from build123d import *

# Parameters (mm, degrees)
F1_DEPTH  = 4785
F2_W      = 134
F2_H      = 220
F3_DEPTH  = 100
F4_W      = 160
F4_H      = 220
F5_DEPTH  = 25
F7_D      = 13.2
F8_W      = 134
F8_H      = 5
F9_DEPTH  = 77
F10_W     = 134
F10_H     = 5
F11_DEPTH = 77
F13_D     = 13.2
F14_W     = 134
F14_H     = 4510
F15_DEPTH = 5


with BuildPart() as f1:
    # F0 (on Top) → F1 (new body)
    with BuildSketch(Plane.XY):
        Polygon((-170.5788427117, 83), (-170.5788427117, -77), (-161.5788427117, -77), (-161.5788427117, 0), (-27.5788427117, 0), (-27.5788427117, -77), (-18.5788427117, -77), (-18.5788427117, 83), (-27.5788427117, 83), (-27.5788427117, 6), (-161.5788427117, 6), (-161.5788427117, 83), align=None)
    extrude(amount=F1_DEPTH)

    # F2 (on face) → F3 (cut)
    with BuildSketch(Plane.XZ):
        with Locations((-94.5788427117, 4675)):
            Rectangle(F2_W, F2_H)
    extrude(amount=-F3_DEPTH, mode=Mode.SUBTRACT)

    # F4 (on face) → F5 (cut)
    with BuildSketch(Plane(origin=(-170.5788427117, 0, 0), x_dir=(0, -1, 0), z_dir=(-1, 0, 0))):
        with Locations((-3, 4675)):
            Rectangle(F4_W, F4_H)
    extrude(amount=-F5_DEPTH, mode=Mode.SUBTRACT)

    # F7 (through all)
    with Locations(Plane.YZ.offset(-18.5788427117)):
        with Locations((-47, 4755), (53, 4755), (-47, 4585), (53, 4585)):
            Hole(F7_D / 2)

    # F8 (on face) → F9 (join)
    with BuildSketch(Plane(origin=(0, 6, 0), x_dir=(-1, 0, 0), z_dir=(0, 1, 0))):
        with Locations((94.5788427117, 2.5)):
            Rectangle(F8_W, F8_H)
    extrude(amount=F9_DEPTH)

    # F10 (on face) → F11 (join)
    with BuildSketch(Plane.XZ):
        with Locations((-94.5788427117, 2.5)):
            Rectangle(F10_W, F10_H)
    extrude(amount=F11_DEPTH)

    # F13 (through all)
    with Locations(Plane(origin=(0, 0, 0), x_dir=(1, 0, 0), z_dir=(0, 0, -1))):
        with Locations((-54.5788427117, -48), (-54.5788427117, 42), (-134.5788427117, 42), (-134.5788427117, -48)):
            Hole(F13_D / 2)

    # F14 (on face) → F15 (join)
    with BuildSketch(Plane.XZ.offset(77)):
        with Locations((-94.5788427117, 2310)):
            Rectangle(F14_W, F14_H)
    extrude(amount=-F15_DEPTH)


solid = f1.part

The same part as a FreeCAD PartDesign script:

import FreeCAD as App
import Part
import Sketcher
from FreeCAD import Vector

doc = App.newDocument("Part")
body = doc.addObject("PartDesign::Body", "Body")

sketch1 = body.newObject("Sketcher::SketchObject", "Sketch")
sketch1.AttachmentSupport = (doc.getObject("XY_Plane"), [""])
sketch1.MapMode = "FlatFace"
sketch1.addGeometry([
    Part.LineSegment(Vector(-171, 83, 0), Vector(-171, -77, 0)),
    Part.LineSegment(Vector(-171, -77, 0), Vector(-162, -77, 0)),
    Part.LineSegment(Vector(-162, -77, 0), Vector(-162, 0, 0)),
    Part.LineSegment(Vector(-162, 0, 0), Vector(-28, 0, 0)),
    Part.LineSegment(Vector(-28, 0, 0), Vector(-28, -77, 0)),
    Part.LineSegment(Vector(-28, -77, 0), Vector(-19, -77, 0)),
    Part.LineSegment(Vector(-19, -77, 0), Vector(-19, 83, 0)),
    Part.LineSegment(Vector(-19, 83, 0), Vector(-28, 83, 0)),
    Part.LineSegment(Vector(-28, 83, 0), Vector(-28, 6, 0)),
    Part.LineSegment(Vector(-28, 6, 0), Vector(-162, 6, 0)),
    Part.LineSegment(Vector(-162, 6, 0), Vector(-162, 83, 0)),
    Part.LineSegment(Vector(-162, 83, 0), Vector(-171, 83, 0)),
], False)
sketch1.addConstraint([
    Sketcher.Constraint("Coincident", 0, 2, 1, 1),
    Sketcher.Constraint("Coincident", 1, 2, 2, 1),
    Sketcher.Constraint("Coincident", 2, 2, 3, 1),
    Sketcher.Constraint("Coincident", 3, 2, 4, 1),
    Sketcher.Constraint("Coincident", 4, 2, 5, 1),
    Sketcher.Constraint("Coincident", 5, 2, 6, 1),
    Sketcher.Constraint("Coincident", 6, 2, 7, 1),
    Sketcher.Constraint("Coincident", 7, 2, 8, 1),
    Sketcher.Constraint("Coincident", 8, 2, 9, 1),
    Sketcher.Constraint("Coincident", 9, 2, 10, 1),
    Sketcher.Constraint("Coincident", 10, 2, 11, 1),
    Sketcher.Constraint("Coincident", 11, 2, 0, 1),
    Sketcher.Constraint("Vertical", 0),
    Sketcher.Constraint("Horizontal", 1),
    Sketcher.Constraint("Vertical", 2),
    Sketcher.Constraint("Horizontal", 3),
    Sketcher.Constraint("Vertical", 4),
    Sketcher.Constraint("Horizontal", 5),
    Sketcher.Constraint("Vertical", 6),
    Sketcher.Constraint("Horizontal", 7),
    Sketcher.Constraint("Vertical", 8),
    Sketcher.Constraint("Horizontal", 9),
    Sketcher.Constraint("Vertical", 10),
    Sketcher.Constraint("Horizontal", 11),
    Sketcher.Constraint("PointOnObject", 2, 2, -1),
    Sketcher.Constraint("Horizontal", 1, 2, 4, 2),
    Sketcher.Constraint("Horizontal", 7, 2, 10, 2),
    Sketcher.Constraint("Vertical", 4, 2, 7, 2),
    Sketcher.Constraint("Vertical", 2, 2, 9, 2),
    Sketcher.Constraint("Equal", 1, 5),
    Sketcher.Constraint("Equal", 4, 8),
    Sketcher.Constraint("DistanceX", 1, 1, 1, 2, 9.0),
    Sketcher.Constraint("DistanceX", 3, 1, 3, 2, 134.0),
    Sketcher.Constraint("DistanceY", 0, 2, 0, 1, 160.0),
    Sketcher.Constraint("DistanceY", 2, 1, 2, 2, 77.0),
    Sketcher.Constraint("DistanceX", 0, 2, -1, 1, 170.578843),
])
pad1 = body.newObject("PartDesign::Pad", "Pad")
pad1.Profile = sketch1
pad1.Length = 4785

sketch2 = body.newObject("Sketcher::SketchObject", "Sketch001")
sketch2.AttachmentSupport = (doc.getObject("XZ_Plane"), [""])
sketch2.MapMode = "FlatFace"
sketch2.addGeometry([
    Part.LineSegment(Vector(-162, 4785, 0), Vector(-162, 4565, 0)),
    Part.LineSegment(Vector(-162, 4565, 0), Vector(-28, 4565, 0)),
    Part.LineSegment(Vector(-28, 4565, 0), Vector(-28, 4785, 0)),
    Part.LineSegment(Vector(-28, 4785, 0), Vector(-162, 4785, 0)),
], False)
sketch2.addConstraint([
    Sketcher.Constraint("Coincident", 0, 2, 1, 1),
    Sketcher.Constraint("Coincident", 1, 2, 2, 1),
    Sketcher.Constraint("Coincident", 2, 2, 3, 1),
    Sketcher.Constraint("Coincident", 3, 2, 0, 1),
    Sketcher.Constraint("Vertical", 0),
    Sketcher.Constraint("Horizontal", 1),
    Sketcher.Constraint("Vertical", 2),
    Sketcher.Constraint("Horizontal", 3),
    Sketcher.Constraint("DistanceX", 1, 1, 1, 2, 134.0),
    Sketcher.Constraint("DistanceY", 0, 2, 0, 1, 220.0),
    Sketcher.Constraint("DistanceY", -1, 1, 0, 2, 4565.0),
    Sketcher.Constraint("DistanceX", 0, 2, -1, 1, 161.578843),
])
pocket1 = body.newObject("PartDesign::Pocket", "Pocket")
pocket1.Profile = sketch2
pocket1.Length = 100

sketch3 = body.newObject("Sketcher::SketchObject", "Sketch002")
sketch3.AttachmentSupport = (doc.getObject("YZ_Plane"), [""])
sketch3.MapMode = "FlatFace"
sketch3.AttachmentOffset = App.Placement(Vector(0, 0, -170.578843), App.Rotation())
sketch3.addGeometry([
    Part.LineSegment(Vector(83, 4785, 0), Vector(83, 4565, 0)),
    Part.LineSegment(Vector(83, 4565, 0), Vector(-77, 4565, 0)),
    Part.LineSegment(Vector(-77, 4565, 0), Vector(-77, 4785, 0)),
    Part.LineSegment(Vector(-77, 4785, 0), Vector(83, 4785, 0)),
], False)
sketch3.addConstraint([
    Sketcher.Constraint("Coincident", 0, 2, 1, 1),
    Sketcher.Constraint("Coincident", 1, 2, 2, 1),
    Sketcher.Constraint("Coincident", 2, 2, 3, 1),
    Sketcher.Constraint("Coincident", 3, 2, 0, 1),
    Sketcher.Constraint("Vertical", 0),
    Sketcher.Constraint("Horizontal", 1),
    Sketcher.Constraint("Vertical", 2),
    Sketcher.Constraint("Horizontal", 3),
    Sketcher.Constraint("DistanceX", 1, 2, 1, 1, 160.0),
    Sketcher.Constraint("DistanceY", 0, 2, 0, 1, 220.0),
    Sketcher.Constraint("DistanceX", -1, 1, 0, 2, 83.0),
    Sketcher.Constraint("DistanceY", -1, 1, 0, 2, 4565.0),
])
pocket2 = body.newObject("PartDesign::Pocket", "Pocket001")
pocket2.Profile = sketch3
pocket2.Length = 25
pocket2.Reversed = True

sketch4 = body.newObject("Sketcher::SketchObject", "Sketch003")
sketch4.AttachmentSupport = (doc.getObject("YZ_Plane"), [""])
sketch4.MapMode = "FlatFace"
sketch4.AttachmentOffset = App.Placement(Vector(0, 0, -18.578843), App.Rotation())
sketch4.addGeometry([
    Part.Circle(Vector(-47, 4755, 0), Vector(0, 0, 1), 7),
    Part.Circle(Vector(53, 4755, 0), Vector(0, 0, 1), 7),
    Part.Circle(Vector(-47, 4585, 0), Vector(0, 0, 1), 7),
    Part.Circle(Vector(53, 4585, 0), Vector(0, 0, 1), 7),
], False)
sketch4.addConstraint([
    Sketcher.Constraint("Equal", 0, 1),
    Sketcher.Constraint("Equal", 1, 2),
    Sketcher.Constraint("Equal", 2, 3),
    Sketcher.Constraint("Horizontal", 0, 3, 1, 3),
    Sketcher.Constraint("Horizontal", 2, 3, 3, 3),
    Sketcher.Constraint("Vertical", 0, 3, 2, 3),
    Sketcher.Constraint("Vertical", 1, 3, 3, 3),
    Sketcher.Constraint("Diameter", 0, 13.2),
    Sketcher.Constraint("DistanceX", 0, 3, -1, 1, 47.0),
    Sketcher.Constraint("DistanceY", -1, 1, 0, 3, 4755.0),
    Sketcher.Constraint("DistanceX", -1, 1, 1, 3, 53.0),
    Sketcher.Constraint("DistanceY", -1, 1, 2, 3, 4585.0),
])
doc.recompute()
hole = body.newObject("PartDesign::Hole", "Hole")
hole.Profile = sketch4
hole.ThreadType = "None"
hole.Diameter = 13.2
hole.DepthType = "ThroughAll"

sketch5 = body.newObject("Sketcher::SketchObject", "Sketch004")
sketch5.AttachmentSupport = (doc.getObject("XZ_Plane"), [""])
sketch5.MapMode = "FlatFace"
sketch5.AttachmentOffset = App.Placement(Vector(0, 0, -6), App.Rotation())
sketch5.addGeometry([
    Part.LineSegment(Vector(-28, 5, 0), Vector(-28, 0, 0)),
    Part.LineSegment(Vector(-28, 0, 0), Vector(-162, 0, 0)),
    Part.LineSegment(Vector(-162, 0, 0), Vector(-162, 5, 0)),
    Part.LineSegment(Vector(-162, 5, 0), Vector(-28, 5, 0)),
], False)
sketch5.addConstraint([
    Sketcher.Constraint("Coincident", 0, 2, 1, 1),
    Sketcher.Constraint("Coincident", 1, 2, 2, 1),
    Sketcher.Constraint("Coincident", 2, 2, 3, 1),
    Sketcher.Constraint("Coincident", 3, 2, 0, 1),
    Sketcher.Constraint("Vertical", 0),
    Sketcher.Constraint("Horizontal", 1),
    Sketcher.Constraint("Vertical", 2),
    Sketcher.Constraint("Horizontal", 3),
    Sketcher.Constraint("PointOnObject", 0, 2, -1),
    Sketcher.Constraint("DistanceX", 1, 2, 1, 1, 134.0),
    Sketcher.Constraint("DistanceY", 0, 2, 0, 1, 5.0),
    Sketcher.Constraint("DistanceX", 0, 2, -1, 1, 27.578843),
])
pad2 = body.newObject("PartDesign::Pad", "Pad001")
pad2.Profile = sketch5
pad2.Length = 77
pad2.Reversed = True

sketch6 = body.newObject("Sketcher::SketchObject", "Sketch005")
sketch6.AttachmentSupport = (doc.getObject("XZ_Plane"), [""])
sketch6.MapMode = "FlatFace"
sketch6.addGeometry([
    Part.LineSegment(Vector(-162, 5, 0), Vector(-162, 0, 0)),
    Part.LineSegment(Vector(-162, 0, 0), Vector(-28, 0, 0)),
    Part.LineSegment(Vector(-28, 0, 0), Vector(-28, 5, 0)),
    Part.LineSegment(Vector(-28, 5, 0), Vector(-162, 5, 0)),
], False)
sketch6.addConstraint([
    Sketcher.Constraint("Coincident", 0, 2, 1, 1),
    Sketcher.Constraint("Coincident", 1, 2, 2, 1),
    Sketcher.Constraint("Coincident", 2, 2, 3, 1),
    Sketcher.Constraint("Coincident", 3, 2, 0, 1),
    Sketcher.Constraint("Vertical", 0),
    Sketcher.Constraint("Horizontal", 1),
    Sketcher.Constraint("Vertical", 2),
    Sketcher.Constraint("Horizontal", 3),
    Sketcher.Constraint("PointOnObject", 0, 2, -1),
    Sketcher.Constraint("DistanceX", 1, 1, 1, 2, 134.0),
    Sketcher.Constraint("DistanceY", 0, 2, 0, 1, 5.0),
    Sketcher.Constraint("DistanceX", 0, 2, -1, 1, 161.578843),
])
pad3 = body.newObject("PartDesign::Pad", "Pad002")
pad3.Profile = sketch6
pad3.Length = 77

sketch7 = body.newObject("Sketcher::SketchObject", "Sketch006")
sketch7.AttachmentSupport = (doc.getObject("XY_Plane"), [""])
sketch7.MapMode = "FlatFace"
sketch7.addGeometry([
    Part.Circle(Vector(-55, 48, 0), Vector(0, 0, 1), 7),
    Part.Circle(Vector(-55, -42, 0), Vector(0, 0, 1), 7),
    Part.Circle(Vector(-135, -42, 0), Vector(0, 0, 1), 7),
    Part.Circle(Vector(-135, 48, 0), Vector(0, 0, 1), 7),
], False)
sketch7.addConstraint([
    Sketcher.Constraint("Equal", 0, 1),
    Sketcher.Constraint("Equal", 1, 2),
    Sketcher.Constraint("Equal", 2, 3),
    Sketcher.Constraint("Horizontal", 1, 3, 2, 3),
    Sketcher.Constraint("Horizontal", 0, 3, 3, 3),
    Sketcher.Constraint("Vertical", 0, 3, 1, 3),
    Sketcher.Constraint("Vertical", 2, 3, 3, 3),
    Sketcher.Constraint("Diameter", 0, 13.2),
    Sketcher.Constraint("DistanceY", -1, 1, 0, 3, 48.0),
    Sketcher.Constraint("DistanceY", 1, 3, -1, 1, 42.0),
    Sketcher.Constraint("DistanceX", 2, 3, 1, 3, 80.0),
    Sketcher.Constraint("DistanceX", 0, 3, -1, 1, 54.578843),
])
doc.recompute()
hole2 = body.newObject("PartDesign::Hole", "Hole001")
hole2.Profile = sketch7
hole2.ThreadType = "None"
hole2.Diameter = 13.2
hole2.DepthType = "ThroughAll"
hole2.Reversed = True

sketch8 = body.newObject("Sketcher::SketchObject", "Sketch007")
sketch8.AttachmentSupport = (doc.getObject("XZ_Plane"), [""])
sketch8.MapMode = "FlatFace"
sketch8.AttachmentOffset = App.Placement(Vector(0, 0, 77), App.Rotation())
sketch8.addGeometry([
    Part.LineSegment(Vector(-162, 4565, 0), Vector(-162, 55, 0)),
    Part.LineSegment(Vector(-162, 55, 0), Vector(-28, 55, 0)),
    Part.LineSegment(Vector(-28, 55, 0), Vector(-28, 4565, 0)),
    Part.LineSegment(Vector(-28, 4565, 0), Vector(-162, 4565, 0)),
], False)
sketch8.addConstraint([
    Sketcher.Constraint("Coincident", 0, 2, 1, 1),
    Sketcher.Constraint("Coincident", 1, 2, 2, 1),
    Sketcher.Constraint("Coincident", 2, 2, 3, 1),
    Sketcher.Constraint("Coincident", 3, 2, 0, 1),
    Sketcher.Constraint("Vertical", 0),
    Sketcher.Constraint("Horizontal", 1),
    Sketcher.Constraint("Vertical", 2),
    Sketcher.Constraint("Horizontal", 3),
    Sketcher.Constraint("DistanceX", 1, 1, 1, 2, 134.0),
    Sketcher.Constraint("DistanceY", 0, 2, 0, 1, 4510.0),
    Sketcher.Constraint("DistanceY", -1, 1, 0, 2, 55.0),
    Sketcher.Constraint("DistanceX", 0, 2, -1, 1, 161.578843),
])
pad4 = body.newObject("PartDesign::Pad", "Pad003")
pad4.Profile = sketch8
pad4.Length = 5
pad4.Reversed = True

doc.recompute()
